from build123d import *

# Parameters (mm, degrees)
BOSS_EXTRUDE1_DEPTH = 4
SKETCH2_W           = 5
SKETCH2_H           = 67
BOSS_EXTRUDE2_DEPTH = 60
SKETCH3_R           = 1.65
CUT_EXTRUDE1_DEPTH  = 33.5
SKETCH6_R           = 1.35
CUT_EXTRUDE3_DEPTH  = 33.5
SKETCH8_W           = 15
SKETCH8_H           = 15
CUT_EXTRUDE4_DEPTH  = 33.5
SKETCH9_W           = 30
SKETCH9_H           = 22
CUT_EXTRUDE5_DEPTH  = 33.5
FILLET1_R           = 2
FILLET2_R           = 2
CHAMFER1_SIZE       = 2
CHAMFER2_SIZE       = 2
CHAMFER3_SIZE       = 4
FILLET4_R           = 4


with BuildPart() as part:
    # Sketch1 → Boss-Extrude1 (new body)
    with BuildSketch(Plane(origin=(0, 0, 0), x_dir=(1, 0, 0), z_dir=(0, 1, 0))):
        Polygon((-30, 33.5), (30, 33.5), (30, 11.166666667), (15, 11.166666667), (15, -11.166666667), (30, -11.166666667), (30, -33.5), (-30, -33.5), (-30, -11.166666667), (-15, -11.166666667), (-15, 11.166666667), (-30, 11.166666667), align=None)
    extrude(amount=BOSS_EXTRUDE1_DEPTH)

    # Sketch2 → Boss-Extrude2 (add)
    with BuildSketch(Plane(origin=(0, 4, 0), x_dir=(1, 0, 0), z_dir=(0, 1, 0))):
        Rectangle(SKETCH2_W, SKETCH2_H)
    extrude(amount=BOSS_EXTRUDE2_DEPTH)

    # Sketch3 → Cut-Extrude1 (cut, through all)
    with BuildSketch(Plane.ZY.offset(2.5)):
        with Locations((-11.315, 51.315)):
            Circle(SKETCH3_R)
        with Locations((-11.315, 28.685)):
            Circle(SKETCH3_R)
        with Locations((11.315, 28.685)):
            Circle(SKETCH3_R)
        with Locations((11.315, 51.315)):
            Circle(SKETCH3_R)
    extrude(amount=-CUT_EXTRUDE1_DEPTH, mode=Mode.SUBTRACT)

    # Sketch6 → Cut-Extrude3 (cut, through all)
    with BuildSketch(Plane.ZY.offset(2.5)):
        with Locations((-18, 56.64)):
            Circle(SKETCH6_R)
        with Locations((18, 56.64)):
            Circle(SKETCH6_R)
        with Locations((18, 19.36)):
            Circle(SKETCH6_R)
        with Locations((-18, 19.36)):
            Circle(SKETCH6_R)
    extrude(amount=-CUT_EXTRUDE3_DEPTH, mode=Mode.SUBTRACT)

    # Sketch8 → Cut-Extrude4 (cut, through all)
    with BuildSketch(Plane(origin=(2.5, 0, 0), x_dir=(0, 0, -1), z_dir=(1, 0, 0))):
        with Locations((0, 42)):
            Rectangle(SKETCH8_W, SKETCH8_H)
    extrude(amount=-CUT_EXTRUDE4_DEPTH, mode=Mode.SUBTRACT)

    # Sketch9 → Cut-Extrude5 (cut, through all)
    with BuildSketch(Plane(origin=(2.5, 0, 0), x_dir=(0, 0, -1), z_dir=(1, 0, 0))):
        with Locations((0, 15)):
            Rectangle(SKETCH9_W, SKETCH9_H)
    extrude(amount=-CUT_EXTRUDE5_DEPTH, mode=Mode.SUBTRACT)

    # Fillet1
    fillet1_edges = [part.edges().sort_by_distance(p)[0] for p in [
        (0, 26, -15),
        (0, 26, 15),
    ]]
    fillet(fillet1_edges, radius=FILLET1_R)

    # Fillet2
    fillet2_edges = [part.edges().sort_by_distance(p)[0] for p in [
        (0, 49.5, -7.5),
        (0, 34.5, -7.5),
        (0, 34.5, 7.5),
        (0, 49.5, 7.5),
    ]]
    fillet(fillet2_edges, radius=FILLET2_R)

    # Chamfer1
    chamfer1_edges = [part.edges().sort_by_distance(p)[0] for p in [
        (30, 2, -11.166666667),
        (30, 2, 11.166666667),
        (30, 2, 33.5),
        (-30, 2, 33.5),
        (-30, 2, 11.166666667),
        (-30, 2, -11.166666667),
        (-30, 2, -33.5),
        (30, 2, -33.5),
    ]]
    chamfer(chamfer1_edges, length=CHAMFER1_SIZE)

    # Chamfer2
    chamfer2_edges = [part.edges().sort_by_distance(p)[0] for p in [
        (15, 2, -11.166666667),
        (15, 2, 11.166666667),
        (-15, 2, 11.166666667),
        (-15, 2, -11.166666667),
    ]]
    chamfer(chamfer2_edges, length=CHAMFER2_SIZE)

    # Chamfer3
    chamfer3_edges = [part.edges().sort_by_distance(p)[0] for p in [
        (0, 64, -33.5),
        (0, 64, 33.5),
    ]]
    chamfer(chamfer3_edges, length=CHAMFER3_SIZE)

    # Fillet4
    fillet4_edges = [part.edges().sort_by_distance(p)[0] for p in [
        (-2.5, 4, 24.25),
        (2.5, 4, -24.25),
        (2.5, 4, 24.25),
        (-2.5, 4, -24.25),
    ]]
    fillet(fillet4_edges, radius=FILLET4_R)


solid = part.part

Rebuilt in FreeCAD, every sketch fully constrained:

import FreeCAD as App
import Part
import Sketcher
Q = App.Units.Quantity


def edges_at(feature, points):
    """Names of the edges that pass closest to the given points."""
    edges = feature.Shape.Edges
    near = lambda p: min(range(len(edges)), key=lambda i: edges[i].distToShape(Part.Vertex(*p))[0])
    return sorted({f"Edge{near(p) + 1}" for p in points})


def add_polygon(sketch, points):
    """Adds a closed chain of lines whose ends are joined by coincident constraints."""
    first, n = sketch.GeometryCount, len(points)
    for a, b in zip(points, points[1:] + points[:1]):
        sketch.addGeometry(Part.LineSegment(App.Vector(*a, 0), App.Vector(*b, 0)), False)
    for i in range(n):
        sketch.addConstraint(Sketcher.Constraint("Coincident", first + i, 2, first + (i + 1) % n, 1))

doc = App.newDocument("Part")
body = doc.addObject("PartDesign::Body", "Body")

# Sketch on XZ plane
sketch1 = doc.addObject("Sketcher::SketchObject", "Sketch")
body.addObject(sketch1)
sketch1.AttachmentSupport = (doc.XZ_Plane, [""])
sketch1.MapMode = "FlatFace"
add_polygon(sketch1, [(30, -34), (-30, -34), (-30, -11), (-15, -11), (-15, 11), (-30, 11), (-30, 34), (30, 34), (30, 11), (15, 11), (15, -11), (30, -11)])  # lines 0-11
sketch1.addConstraint([
    Sketcher.Constraint("Horizontal", 0),
    Sketcher.Constraint("Vertical", 1),
    Sketcher.Constraint("Horizontal", 2),
    Sketcher.Constraint("Vertical", 3),
    Sketcher.Constraint("Horizontal", 4),
    Sketcher.Constraint("Vertical", 5),
    Sketcher.Constraint("Horizontal", 6),
    Sketcher.Constraint("Vertical", 7),
    Sketcher.Constraint("Horizontal", 8),
    Sketcher.Constraint("Vertical", 9),
    Sketcher.Constraint("Horizontal", 10),
    Sketcher.Constraint("Vertical", 11),
    Sketcher.Constraint("Symmetric", 0, 2, 6, 2, -1, 1),
    Sketcher.Constraint("Symmetric", 2, 2, 8, 2, -1, 1),
    Sketcher.Constraint("Symmetric", 4, 2, 10, 2, -1, 1),
    Sketcher.Constraint("Symmetric", 4, 2, 7, 2, -2),
    Sketcher.Constraint("Equal", 1, 3),
    Sketcher.Constraint("DistanceX", 0, 2, 0, 1, Q("60 mm")),
    Sketcher.Constraint("DistanceX", 2, 1, 2, 2, Q("15 mm")),
    Sketcher.Constraint("DistanceY", 0, 2, 5, 2, Q("67 mm")),
])
pad1 = doc.addObject("PartDesign::Pad", "Pad")
body.addObject(pad1)
pad1.Profile = sketch1
pad1.Length = 4
pad1.Reversed = True

# Sketch on XZ plane
sketch2 = doc.addObject("Sketcher::SketchObject", "Sketch001")
body.addObject(sketch2)
sketch2.AttachmentSupport = (doc.XZ_Plane, [""])
sketch2.MapMode = "FlatFace"
sketch2.AttachmentOffset = App.Placement(App.Vector(0, 0, -4), App.Rotation())
add_polygon(sketch2, [(-2, -34), (-2, 34), (2, 34), (2, -34)])  # lines 0-3
sketch2.addConstraint([
    Sketcher.Constraint("Vertical", 0),
    Sketcher.Constraint("Horizontal", 1),
    Sketcher.Constraint("Vertical", 2),
    Sketcher.Constraint("Horizontal", 3),
    Sketcher.Constraint("Symmetric", 0, 2, 2, 2, -1, 1),
    Sketcher.Constraint("DistanceX", 1, 1, 1, 2, Q("5 mm")),
    Sketcher.Constraint("DistanceY", 0, 1, 0, 2, Q("67 mm")),
])
pad2 = doc.addObject("PartDesign::Pad", "Pad001")
body.addObject(pad2)
pad2.Profile = sketch2
pad2.Length = 60
pad2.Reversed = True

# Sketch on YZ plane
sketch3 = doc.addObject("Sketcher::SketchObject", "Sketch002")
body.addObject(sketch3)
sketch3.AttachmentSupport = (doc.YZ_Plane, [""])
sketch3.MapMode = "FlatFace"
sketch3.AttachmentOffset = App.Placement(App.Vector(0, 0, -2.5), App.Rotation())
sketch3.addGeometry([
    Part.Circle(App.Vector(51.3, -11.3, 0), App.Vector(0, 0, 1), 1.6),
    Part.Circle(App.Vector(28.7, -11.3, 0), App.Vector(0, 0, 1), 1.6),
    Part.Circle(App.Vector(28.7, 11.3, 0), App.Vector(0, 0, 1), 1.6),
    Part.Circle(App.Vector(51.3, 11.3, 0), App.Vector(0, 0, 1), 1.6),
], False)
sketch3.addConstraint([
    Sketcher.Constraint("Equal", 0, 1),
    Sketcher.Constraint("Equal", 1, 2),
    Sketcher.Constraint("Equal", 2, 3),
    Sketcher.Constraint("Symmetric", 1, 3, 2, 3, -1),
    Sketcher.Constraint("Symmetric", 0, 3, 3, 3, -1),
    Sketcher.Constraint("Horizontal", 0, 3, 1, 3),
    Sketcher.Constraint("Diameter", 0, Q("3.3 mm")),
    Sketcher.Constraint("DistanceX", 1, 3, 0, 3, Q("22.63 mm")),
    Sketcher.Constraint("DistanceY", 1, 3, 2, 3, Q("22.63 mm")),
    Sketcher.Constraint("DistanceX", -1, 1, 0, 3, Q("51.315 mm")),
])
pocket1 = doc.addObject("PartDesign::Pocket", "Pocket")
body.addObject(pocket1)
pocket1.Profile = sketch3
pocket1.Type = "ThroughAll"
pocket1.Reversed = True

# Sketch on YZ plane
sketch4 = doc.addObject("Sketcher::SketchObject", "Sketch003")
body.addObject(sketch4)
sketch4.AttachmentSupport = (doc.YZ_Plane, [""])
sketch4.MapMode = "FlatFace"
sketch4.AttachmentOffset = App.Placement(App.Vector(0, 0, -2.5), App.Rotation())
sketch4.addGeometry([
    Part.Circle(App.Vector(56.6, -18, 0), App.Vector(0, 0, 1), 1.4),
    Part.Circle(App.Vector(56.6, 18, 0), App.Vector(0, 0, 1), 1.4),
    Part.Circle(App.Vector(19.4, 18, 0), App.Vector(0, 0, 1), 1.4),
    Part.Circle(App.Vector(19.4, -18, 0), App.Vector(0, 0, 1), 1.4),
], False)
sketch4.addConstraint([
    Sketcher.Constraint("Equal", 0, 1),
    Sketcher.Constraint("Equal", 1, 2),
    Sketcher.Constraint("Equal", 2, 3),
    Sketcher.Constraint("Symmetric", 0, 3, 1, 3, -1),
    Sketcher.Constraint("Symmetric", 2, 3, 3, 3, -1),
    Sketcher.Constraint("Horizontal", 1, 3, 2, 3),
    Sketcher.Constraint("Diameter", 0, Q("2.7 mm")),
    Sketcher.Constraint("DistanceY", 0, 3, -1, 1, Q("18 mm")),
    Sketcher.Constraint("DistanceX", -1, 1, 0, 3, Q("56.64 mm")),
    Sketcher.Constraint("DistanceX", -1, 1, 2, 3, Q("19.36 mm")),
])
pocket2 = doc.addObject("PartDesign::Pocket", "Pocket001")
body.addObject(pocket2)
pocket2.Profile = sketch4
pocket2.Type = "ThroughAll"
pocket2.Reversed = True

# Sketch on YZ plane
sketch5 = doc.addObject("Sketcher::SketchObject", "Sketch004")
body.addObject(sketch5)
sketch5.AttachmentSupport = (doc.YZ_Plane, [""])
sketch5.MapMode = "FlatFace"
sketch5.AttachmentOffset = App.Placement(App.Vector(0, 0, 2.5), App.Rotation())
add_polygon(sketch5, [(50, 8), (34, 8), (34, -8), (50, -8)])  # lines 0-3
sketch5.addConstraint([
    Sketcher.Constraint("Horizontal", 0),
    Sketcher.Constraint("Vertical", 1),
    Sketcher.Constraint("Horizontal", 2),
    Sketcher.Constraint("Vertical", 3),
    Sketcher.Constraint("Equal", 2, 1),
    Sketcher.Constraint("DistanceX", 0, 2, 0, 1, Q("15 mm")),
    Sketcher.Constraint("DistanceX", -1, 1, 0, 2, Q("34.5 mm")),
    Sketcher.Constraint("DistanceY", -1, 1, 0, 2, Q("7.5 mm")),
])
pocket3 = doc.addObject("PartDesign::Pocket", "Pocket002")
body.addObject(pocket3)
pocket3.Profile = sketch5
pocket3.Type = "ThroughAll"

# Sketch on YZ plane
sketch6 = doc.addObject("Sketcher::SketchObject", "Sketch005")
body.addObject(sketch6)
sketch6.AttachmentSupport = (doc.YZ_Plane, [""])
sketch6.MapMode = "FlatFace"
sketch6.AttachmentOffset = App.Placement(App.Vector(0, 0, 2.5), App.Rotation())
add_polygon(sketch6, [(26, 15), (4, 15), (4, -15), (26, -15)])  # lines 0-3
sketch6.addConstraint([
    Sketcher.Constraint("Horizontal", 0),
    Sketcher.Constraint("Vertical", 1),
    Sketcher.Constraint("Horizontal", 2),
    Sketcher.Constraint("Vertical", 3),
    Sketcher.Constraint("DistanceX", 0, 2, 0, 1, Q("22 mm")),
    Sketcher.Constraint("DistanceY", 1, 2, 1, 1, Q("30 mm")),
    Sketcher.Constraint("DistanceX", -1, 1, 0, 2, Q("4 mm")),
    Sketcher.Constraint("DistanceY", -1, 1, 0, 2, Q("15 mm")),
])
pocket4 = doc.addObject("PartDesign::Pocket", "Pocket003")
body.addObject(pocket4)
pocket4.Profile = sketch6
pocket4.Type = "ThroughAll"
doc.recompute()

fillet = doc.addObject("PartDesign::Fillet", "Fillet")
body.addObject(fillet)
fillet.Base = (pocket4, edges_at(pocket4, [(0, 26, -15), (0, 26, 15)]))
fillet.Radius = 2
doc.recompute()

fillet2 = doc.addObject("PartDesign::Fillet", "Fillet001")
body.addObject(fillet2)
fillet2.Base = (fillet, edges_at(fillet, [
    (0, 49.5, -7.5),
    (0, 34.5, -7.5),
    (0, 34.5, 7.5),
    (0, 49.5, 7.5),
]))
fillet2.Radius = 2
doc.recompute()

chamfer = doc.addObject("PartDesign::Chamfer", "Chamfer")
body.addObject(chamfer)
chamfer.Base = (fillet2, edges_at(fillet2, [
    (30, 2, -11.167),
    (30, 2, 11.167),
    (30, 2, 33.5),
    (-30, 2, 33.5),
    (-30, 2, 11.167),
    (-30, 2, -11.167),
    (-30, 2, -33.5),
    (30, 2, -33.5),
]))
chamfer.Size = 2
doc.recompute()

chamfer2 = doc.addObject("PartDesign::Chamfer", "Chamfer001")
body.addObject(chamfer2)
chamfer2.Base = (chamfer, edges_at(chamfer, [
    (15, 2, -11.167),
    (15, 2, 11.167),
    (-15, 2, 11.167),
    (-15, 2, -11.167),
]))
chamfer2.Size = 2
doc.recompute()

chamfer3 = doc.addObject("PartDesign::Chamfer", "Chamfer002")
body.addObject(chamfer3)
chamfer3.Base = (chamfer2, edges_at(chamfer2, [(0, 64, -33.5), (0, 64, 33.5)]))
chamfer3.Size = 4
doc.recompute()

fillet3 = doc.addObject("PartDesign::Fillet", "Fillet002")
body.addObject(fillet3)
fillet3.Base = (chamfer3, edges_at(chamfer3, [
    (-2.5, 4, 24.25),
    (2.5, 4, -24.25),
    (2.5, 4, 24.25),
    (-2.5, 4, -24.25),
]))
fillet3.Radius = 4

doc.recompute()
